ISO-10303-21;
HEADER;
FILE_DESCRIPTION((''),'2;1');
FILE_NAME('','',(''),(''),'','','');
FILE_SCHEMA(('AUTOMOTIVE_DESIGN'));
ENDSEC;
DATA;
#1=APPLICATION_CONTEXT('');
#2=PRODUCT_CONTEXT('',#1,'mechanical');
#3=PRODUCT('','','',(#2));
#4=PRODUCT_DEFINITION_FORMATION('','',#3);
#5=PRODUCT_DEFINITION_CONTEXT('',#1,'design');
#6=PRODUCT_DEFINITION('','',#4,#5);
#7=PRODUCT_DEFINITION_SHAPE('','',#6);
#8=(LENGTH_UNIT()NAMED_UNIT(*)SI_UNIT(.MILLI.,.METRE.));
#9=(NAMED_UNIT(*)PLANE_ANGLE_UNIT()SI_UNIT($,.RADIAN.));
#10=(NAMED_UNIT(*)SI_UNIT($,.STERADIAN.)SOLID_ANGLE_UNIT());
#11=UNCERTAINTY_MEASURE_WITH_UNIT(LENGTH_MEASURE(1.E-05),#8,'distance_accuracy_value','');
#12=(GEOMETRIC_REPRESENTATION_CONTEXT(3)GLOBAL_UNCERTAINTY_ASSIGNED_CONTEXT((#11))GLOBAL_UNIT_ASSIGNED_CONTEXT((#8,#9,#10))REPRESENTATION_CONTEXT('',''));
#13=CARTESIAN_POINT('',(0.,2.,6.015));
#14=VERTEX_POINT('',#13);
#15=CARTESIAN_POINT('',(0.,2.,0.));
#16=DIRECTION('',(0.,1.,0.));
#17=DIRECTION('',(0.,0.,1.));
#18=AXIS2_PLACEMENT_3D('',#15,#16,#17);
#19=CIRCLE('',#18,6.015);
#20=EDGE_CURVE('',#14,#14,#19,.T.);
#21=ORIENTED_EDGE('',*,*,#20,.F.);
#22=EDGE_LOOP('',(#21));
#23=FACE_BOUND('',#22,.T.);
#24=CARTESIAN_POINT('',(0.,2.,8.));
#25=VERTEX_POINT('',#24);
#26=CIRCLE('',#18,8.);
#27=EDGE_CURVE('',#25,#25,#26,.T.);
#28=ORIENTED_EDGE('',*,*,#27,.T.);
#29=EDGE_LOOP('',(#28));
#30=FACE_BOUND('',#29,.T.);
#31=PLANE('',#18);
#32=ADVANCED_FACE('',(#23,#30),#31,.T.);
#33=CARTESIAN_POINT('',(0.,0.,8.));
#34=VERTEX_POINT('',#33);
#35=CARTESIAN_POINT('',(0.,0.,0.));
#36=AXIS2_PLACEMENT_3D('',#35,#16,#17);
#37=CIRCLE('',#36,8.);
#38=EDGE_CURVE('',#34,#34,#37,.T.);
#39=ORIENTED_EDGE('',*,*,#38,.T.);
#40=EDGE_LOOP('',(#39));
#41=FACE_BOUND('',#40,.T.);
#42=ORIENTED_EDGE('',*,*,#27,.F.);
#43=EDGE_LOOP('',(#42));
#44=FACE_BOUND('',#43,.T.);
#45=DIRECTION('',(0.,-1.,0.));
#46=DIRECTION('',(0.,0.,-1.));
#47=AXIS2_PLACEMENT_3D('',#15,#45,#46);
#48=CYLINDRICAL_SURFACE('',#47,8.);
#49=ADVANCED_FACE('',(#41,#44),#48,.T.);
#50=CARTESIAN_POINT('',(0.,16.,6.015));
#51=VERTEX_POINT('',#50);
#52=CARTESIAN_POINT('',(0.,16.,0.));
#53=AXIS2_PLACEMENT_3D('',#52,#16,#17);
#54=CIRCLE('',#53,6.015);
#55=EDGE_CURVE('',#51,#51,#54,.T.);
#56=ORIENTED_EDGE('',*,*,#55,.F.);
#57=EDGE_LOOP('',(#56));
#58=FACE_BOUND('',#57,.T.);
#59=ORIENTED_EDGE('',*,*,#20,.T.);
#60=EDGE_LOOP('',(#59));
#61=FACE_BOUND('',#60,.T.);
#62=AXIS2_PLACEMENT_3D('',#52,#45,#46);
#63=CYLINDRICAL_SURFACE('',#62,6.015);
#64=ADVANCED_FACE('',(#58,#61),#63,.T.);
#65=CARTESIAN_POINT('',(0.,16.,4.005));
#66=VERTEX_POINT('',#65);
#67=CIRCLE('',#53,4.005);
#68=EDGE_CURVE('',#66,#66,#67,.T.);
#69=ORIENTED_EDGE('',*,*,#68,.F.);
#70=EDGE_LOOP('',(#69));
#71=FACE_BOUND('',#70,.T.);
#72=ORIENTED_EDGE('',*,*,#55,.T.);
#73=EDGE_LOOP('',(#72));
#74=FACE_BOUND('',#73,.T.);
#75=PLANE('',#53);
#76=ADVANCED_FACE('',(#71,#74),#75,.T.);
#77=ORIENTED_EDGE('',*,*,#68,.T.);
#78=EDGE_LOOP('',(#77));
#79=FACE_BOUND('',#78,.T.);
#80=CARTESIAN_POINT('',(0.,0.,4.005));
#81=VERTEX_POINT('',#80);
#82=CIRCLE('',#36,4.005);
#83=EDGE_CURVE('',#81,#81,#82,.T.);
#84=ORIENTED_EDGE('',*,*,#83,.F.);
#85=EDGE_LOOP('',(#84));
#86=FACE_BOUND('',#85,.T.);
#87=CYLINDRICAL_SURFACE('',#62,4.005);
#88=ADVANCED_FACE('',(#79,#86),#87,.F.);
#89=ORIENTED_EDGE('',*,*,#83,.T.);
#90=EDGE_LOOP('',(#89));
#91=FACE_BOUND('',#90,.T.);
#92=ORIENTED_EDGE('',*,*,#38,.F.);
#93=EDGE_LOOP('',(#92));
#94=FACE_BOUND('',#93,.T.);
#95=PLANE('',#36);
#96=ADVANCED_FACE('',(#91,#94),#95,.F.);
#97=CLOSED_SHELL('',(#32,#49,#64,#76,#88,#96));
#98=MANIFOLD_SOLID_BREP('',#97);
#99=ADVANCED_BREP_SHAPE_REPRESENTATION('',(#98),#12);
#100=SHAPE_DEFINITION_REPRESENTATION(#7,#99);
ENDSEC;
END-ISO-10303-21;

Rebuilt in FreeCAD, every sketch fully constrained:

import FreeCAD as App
import Part
import Sketcher
from FreeCAD import Vector

doc = App.newDocument("Part")
params = doc.addObject("Spreadsheet::Sheet", "Params")
for row, (alias, value) in enumerate([
    ("sketch1_diameter", "12.03 mm"),
    ("sketch1_diameter2", "8.01 mm"),
    ("pad1_length", "16 mm"),
    ("sketch2_diameter", "16 mm"),
    ("sketch2_diameter2", "12.03 mm"),
    ("pad2_length", "2 mm"),
], start=1):
    params.set(f"A{row}", alias)
    params.set(f"B{row}", "=" + value)
    params.setAlias(f"B{row}", alias)

body = doc.addObject("PartDesign::Body", "Body")

# Sketch on XZ plane
sketch1 = body.newObject("Sketcher::SketchObject", "Sketch")
sketch1.AttachmentSupport = (doc.getObject("XZ_Plane"), [""])
sketch1.MapMode = "FlatFace"
sketch1.addGeometry([
    Part.Circle(Vector(0, 0, 0), Vector(0, 0, 1), 6),
    Part.Circle(Vector(0, 0, 0), Vector(0, 0, 1), 4),
], False)
sketch1.addConstraint([
    Sketcher.Constraint("Coincident", 0, 3, -1, 1),
    Sketcher.Constraint("Coincident", 1, 3, -1, 1),
    Sketcher.Constraint("Diameter", 0, 12.03),
    Sketcher.Constraint("Diameter", 1, 8.01),
])
sketch1.setExpression("Constraints[2]", "Params.sketch1_diameter")
sketch1.setExpression("Constraints[3]", "Params.sketch1_diameter2")
pad1 = body.newObject("PartDesign::Pad", "Pad")
pad1.Profile = sketch1
pad1.setExpression("Length", "Params.pad1_length")
pad1.Reversed = True

# Sketch on XZ plane
sketch2 = body.newObject("Sketcher::SketchObject", "Sketch001")
sketch2.AttachmentSupport = (doc.getObject("XZ_Plane"), [""])
sketch2.MapMode = "FlatFace"
sketch2.addGeometry([
    Part.Circle(Vector(0, 0, 0), Vector(0, 0, 1), 8),
    Part.Circle(Vector(0, 0, 0), Vector(0, 0, 1), 6),
], False)
sketch2.addConstraint([
    Sketcher.Constraint("Coincident", 0, 3, -1, 1),
    Sketcher.Constraint("Coincident", 1, 3, -1, 1),
    Sketcher.Constraint("Diameter", 0, 16.0),
    Sketcher.Constraint("Diameter", 1, 12.03),
])
sketch2.setExpression("Constraints[2]", "Params.sketch2_diameter")
sketch2.setExpression("Constraints[3]", "Params.sketch2_diameter2")
pad2 = body.newObject("PartDesign::Pad", "Pad001")
pad2.Profile = sketch2
pad2.setExpression("Length", "Params.pad2_length")
pad2.Reversed = True

doc.recompute()
